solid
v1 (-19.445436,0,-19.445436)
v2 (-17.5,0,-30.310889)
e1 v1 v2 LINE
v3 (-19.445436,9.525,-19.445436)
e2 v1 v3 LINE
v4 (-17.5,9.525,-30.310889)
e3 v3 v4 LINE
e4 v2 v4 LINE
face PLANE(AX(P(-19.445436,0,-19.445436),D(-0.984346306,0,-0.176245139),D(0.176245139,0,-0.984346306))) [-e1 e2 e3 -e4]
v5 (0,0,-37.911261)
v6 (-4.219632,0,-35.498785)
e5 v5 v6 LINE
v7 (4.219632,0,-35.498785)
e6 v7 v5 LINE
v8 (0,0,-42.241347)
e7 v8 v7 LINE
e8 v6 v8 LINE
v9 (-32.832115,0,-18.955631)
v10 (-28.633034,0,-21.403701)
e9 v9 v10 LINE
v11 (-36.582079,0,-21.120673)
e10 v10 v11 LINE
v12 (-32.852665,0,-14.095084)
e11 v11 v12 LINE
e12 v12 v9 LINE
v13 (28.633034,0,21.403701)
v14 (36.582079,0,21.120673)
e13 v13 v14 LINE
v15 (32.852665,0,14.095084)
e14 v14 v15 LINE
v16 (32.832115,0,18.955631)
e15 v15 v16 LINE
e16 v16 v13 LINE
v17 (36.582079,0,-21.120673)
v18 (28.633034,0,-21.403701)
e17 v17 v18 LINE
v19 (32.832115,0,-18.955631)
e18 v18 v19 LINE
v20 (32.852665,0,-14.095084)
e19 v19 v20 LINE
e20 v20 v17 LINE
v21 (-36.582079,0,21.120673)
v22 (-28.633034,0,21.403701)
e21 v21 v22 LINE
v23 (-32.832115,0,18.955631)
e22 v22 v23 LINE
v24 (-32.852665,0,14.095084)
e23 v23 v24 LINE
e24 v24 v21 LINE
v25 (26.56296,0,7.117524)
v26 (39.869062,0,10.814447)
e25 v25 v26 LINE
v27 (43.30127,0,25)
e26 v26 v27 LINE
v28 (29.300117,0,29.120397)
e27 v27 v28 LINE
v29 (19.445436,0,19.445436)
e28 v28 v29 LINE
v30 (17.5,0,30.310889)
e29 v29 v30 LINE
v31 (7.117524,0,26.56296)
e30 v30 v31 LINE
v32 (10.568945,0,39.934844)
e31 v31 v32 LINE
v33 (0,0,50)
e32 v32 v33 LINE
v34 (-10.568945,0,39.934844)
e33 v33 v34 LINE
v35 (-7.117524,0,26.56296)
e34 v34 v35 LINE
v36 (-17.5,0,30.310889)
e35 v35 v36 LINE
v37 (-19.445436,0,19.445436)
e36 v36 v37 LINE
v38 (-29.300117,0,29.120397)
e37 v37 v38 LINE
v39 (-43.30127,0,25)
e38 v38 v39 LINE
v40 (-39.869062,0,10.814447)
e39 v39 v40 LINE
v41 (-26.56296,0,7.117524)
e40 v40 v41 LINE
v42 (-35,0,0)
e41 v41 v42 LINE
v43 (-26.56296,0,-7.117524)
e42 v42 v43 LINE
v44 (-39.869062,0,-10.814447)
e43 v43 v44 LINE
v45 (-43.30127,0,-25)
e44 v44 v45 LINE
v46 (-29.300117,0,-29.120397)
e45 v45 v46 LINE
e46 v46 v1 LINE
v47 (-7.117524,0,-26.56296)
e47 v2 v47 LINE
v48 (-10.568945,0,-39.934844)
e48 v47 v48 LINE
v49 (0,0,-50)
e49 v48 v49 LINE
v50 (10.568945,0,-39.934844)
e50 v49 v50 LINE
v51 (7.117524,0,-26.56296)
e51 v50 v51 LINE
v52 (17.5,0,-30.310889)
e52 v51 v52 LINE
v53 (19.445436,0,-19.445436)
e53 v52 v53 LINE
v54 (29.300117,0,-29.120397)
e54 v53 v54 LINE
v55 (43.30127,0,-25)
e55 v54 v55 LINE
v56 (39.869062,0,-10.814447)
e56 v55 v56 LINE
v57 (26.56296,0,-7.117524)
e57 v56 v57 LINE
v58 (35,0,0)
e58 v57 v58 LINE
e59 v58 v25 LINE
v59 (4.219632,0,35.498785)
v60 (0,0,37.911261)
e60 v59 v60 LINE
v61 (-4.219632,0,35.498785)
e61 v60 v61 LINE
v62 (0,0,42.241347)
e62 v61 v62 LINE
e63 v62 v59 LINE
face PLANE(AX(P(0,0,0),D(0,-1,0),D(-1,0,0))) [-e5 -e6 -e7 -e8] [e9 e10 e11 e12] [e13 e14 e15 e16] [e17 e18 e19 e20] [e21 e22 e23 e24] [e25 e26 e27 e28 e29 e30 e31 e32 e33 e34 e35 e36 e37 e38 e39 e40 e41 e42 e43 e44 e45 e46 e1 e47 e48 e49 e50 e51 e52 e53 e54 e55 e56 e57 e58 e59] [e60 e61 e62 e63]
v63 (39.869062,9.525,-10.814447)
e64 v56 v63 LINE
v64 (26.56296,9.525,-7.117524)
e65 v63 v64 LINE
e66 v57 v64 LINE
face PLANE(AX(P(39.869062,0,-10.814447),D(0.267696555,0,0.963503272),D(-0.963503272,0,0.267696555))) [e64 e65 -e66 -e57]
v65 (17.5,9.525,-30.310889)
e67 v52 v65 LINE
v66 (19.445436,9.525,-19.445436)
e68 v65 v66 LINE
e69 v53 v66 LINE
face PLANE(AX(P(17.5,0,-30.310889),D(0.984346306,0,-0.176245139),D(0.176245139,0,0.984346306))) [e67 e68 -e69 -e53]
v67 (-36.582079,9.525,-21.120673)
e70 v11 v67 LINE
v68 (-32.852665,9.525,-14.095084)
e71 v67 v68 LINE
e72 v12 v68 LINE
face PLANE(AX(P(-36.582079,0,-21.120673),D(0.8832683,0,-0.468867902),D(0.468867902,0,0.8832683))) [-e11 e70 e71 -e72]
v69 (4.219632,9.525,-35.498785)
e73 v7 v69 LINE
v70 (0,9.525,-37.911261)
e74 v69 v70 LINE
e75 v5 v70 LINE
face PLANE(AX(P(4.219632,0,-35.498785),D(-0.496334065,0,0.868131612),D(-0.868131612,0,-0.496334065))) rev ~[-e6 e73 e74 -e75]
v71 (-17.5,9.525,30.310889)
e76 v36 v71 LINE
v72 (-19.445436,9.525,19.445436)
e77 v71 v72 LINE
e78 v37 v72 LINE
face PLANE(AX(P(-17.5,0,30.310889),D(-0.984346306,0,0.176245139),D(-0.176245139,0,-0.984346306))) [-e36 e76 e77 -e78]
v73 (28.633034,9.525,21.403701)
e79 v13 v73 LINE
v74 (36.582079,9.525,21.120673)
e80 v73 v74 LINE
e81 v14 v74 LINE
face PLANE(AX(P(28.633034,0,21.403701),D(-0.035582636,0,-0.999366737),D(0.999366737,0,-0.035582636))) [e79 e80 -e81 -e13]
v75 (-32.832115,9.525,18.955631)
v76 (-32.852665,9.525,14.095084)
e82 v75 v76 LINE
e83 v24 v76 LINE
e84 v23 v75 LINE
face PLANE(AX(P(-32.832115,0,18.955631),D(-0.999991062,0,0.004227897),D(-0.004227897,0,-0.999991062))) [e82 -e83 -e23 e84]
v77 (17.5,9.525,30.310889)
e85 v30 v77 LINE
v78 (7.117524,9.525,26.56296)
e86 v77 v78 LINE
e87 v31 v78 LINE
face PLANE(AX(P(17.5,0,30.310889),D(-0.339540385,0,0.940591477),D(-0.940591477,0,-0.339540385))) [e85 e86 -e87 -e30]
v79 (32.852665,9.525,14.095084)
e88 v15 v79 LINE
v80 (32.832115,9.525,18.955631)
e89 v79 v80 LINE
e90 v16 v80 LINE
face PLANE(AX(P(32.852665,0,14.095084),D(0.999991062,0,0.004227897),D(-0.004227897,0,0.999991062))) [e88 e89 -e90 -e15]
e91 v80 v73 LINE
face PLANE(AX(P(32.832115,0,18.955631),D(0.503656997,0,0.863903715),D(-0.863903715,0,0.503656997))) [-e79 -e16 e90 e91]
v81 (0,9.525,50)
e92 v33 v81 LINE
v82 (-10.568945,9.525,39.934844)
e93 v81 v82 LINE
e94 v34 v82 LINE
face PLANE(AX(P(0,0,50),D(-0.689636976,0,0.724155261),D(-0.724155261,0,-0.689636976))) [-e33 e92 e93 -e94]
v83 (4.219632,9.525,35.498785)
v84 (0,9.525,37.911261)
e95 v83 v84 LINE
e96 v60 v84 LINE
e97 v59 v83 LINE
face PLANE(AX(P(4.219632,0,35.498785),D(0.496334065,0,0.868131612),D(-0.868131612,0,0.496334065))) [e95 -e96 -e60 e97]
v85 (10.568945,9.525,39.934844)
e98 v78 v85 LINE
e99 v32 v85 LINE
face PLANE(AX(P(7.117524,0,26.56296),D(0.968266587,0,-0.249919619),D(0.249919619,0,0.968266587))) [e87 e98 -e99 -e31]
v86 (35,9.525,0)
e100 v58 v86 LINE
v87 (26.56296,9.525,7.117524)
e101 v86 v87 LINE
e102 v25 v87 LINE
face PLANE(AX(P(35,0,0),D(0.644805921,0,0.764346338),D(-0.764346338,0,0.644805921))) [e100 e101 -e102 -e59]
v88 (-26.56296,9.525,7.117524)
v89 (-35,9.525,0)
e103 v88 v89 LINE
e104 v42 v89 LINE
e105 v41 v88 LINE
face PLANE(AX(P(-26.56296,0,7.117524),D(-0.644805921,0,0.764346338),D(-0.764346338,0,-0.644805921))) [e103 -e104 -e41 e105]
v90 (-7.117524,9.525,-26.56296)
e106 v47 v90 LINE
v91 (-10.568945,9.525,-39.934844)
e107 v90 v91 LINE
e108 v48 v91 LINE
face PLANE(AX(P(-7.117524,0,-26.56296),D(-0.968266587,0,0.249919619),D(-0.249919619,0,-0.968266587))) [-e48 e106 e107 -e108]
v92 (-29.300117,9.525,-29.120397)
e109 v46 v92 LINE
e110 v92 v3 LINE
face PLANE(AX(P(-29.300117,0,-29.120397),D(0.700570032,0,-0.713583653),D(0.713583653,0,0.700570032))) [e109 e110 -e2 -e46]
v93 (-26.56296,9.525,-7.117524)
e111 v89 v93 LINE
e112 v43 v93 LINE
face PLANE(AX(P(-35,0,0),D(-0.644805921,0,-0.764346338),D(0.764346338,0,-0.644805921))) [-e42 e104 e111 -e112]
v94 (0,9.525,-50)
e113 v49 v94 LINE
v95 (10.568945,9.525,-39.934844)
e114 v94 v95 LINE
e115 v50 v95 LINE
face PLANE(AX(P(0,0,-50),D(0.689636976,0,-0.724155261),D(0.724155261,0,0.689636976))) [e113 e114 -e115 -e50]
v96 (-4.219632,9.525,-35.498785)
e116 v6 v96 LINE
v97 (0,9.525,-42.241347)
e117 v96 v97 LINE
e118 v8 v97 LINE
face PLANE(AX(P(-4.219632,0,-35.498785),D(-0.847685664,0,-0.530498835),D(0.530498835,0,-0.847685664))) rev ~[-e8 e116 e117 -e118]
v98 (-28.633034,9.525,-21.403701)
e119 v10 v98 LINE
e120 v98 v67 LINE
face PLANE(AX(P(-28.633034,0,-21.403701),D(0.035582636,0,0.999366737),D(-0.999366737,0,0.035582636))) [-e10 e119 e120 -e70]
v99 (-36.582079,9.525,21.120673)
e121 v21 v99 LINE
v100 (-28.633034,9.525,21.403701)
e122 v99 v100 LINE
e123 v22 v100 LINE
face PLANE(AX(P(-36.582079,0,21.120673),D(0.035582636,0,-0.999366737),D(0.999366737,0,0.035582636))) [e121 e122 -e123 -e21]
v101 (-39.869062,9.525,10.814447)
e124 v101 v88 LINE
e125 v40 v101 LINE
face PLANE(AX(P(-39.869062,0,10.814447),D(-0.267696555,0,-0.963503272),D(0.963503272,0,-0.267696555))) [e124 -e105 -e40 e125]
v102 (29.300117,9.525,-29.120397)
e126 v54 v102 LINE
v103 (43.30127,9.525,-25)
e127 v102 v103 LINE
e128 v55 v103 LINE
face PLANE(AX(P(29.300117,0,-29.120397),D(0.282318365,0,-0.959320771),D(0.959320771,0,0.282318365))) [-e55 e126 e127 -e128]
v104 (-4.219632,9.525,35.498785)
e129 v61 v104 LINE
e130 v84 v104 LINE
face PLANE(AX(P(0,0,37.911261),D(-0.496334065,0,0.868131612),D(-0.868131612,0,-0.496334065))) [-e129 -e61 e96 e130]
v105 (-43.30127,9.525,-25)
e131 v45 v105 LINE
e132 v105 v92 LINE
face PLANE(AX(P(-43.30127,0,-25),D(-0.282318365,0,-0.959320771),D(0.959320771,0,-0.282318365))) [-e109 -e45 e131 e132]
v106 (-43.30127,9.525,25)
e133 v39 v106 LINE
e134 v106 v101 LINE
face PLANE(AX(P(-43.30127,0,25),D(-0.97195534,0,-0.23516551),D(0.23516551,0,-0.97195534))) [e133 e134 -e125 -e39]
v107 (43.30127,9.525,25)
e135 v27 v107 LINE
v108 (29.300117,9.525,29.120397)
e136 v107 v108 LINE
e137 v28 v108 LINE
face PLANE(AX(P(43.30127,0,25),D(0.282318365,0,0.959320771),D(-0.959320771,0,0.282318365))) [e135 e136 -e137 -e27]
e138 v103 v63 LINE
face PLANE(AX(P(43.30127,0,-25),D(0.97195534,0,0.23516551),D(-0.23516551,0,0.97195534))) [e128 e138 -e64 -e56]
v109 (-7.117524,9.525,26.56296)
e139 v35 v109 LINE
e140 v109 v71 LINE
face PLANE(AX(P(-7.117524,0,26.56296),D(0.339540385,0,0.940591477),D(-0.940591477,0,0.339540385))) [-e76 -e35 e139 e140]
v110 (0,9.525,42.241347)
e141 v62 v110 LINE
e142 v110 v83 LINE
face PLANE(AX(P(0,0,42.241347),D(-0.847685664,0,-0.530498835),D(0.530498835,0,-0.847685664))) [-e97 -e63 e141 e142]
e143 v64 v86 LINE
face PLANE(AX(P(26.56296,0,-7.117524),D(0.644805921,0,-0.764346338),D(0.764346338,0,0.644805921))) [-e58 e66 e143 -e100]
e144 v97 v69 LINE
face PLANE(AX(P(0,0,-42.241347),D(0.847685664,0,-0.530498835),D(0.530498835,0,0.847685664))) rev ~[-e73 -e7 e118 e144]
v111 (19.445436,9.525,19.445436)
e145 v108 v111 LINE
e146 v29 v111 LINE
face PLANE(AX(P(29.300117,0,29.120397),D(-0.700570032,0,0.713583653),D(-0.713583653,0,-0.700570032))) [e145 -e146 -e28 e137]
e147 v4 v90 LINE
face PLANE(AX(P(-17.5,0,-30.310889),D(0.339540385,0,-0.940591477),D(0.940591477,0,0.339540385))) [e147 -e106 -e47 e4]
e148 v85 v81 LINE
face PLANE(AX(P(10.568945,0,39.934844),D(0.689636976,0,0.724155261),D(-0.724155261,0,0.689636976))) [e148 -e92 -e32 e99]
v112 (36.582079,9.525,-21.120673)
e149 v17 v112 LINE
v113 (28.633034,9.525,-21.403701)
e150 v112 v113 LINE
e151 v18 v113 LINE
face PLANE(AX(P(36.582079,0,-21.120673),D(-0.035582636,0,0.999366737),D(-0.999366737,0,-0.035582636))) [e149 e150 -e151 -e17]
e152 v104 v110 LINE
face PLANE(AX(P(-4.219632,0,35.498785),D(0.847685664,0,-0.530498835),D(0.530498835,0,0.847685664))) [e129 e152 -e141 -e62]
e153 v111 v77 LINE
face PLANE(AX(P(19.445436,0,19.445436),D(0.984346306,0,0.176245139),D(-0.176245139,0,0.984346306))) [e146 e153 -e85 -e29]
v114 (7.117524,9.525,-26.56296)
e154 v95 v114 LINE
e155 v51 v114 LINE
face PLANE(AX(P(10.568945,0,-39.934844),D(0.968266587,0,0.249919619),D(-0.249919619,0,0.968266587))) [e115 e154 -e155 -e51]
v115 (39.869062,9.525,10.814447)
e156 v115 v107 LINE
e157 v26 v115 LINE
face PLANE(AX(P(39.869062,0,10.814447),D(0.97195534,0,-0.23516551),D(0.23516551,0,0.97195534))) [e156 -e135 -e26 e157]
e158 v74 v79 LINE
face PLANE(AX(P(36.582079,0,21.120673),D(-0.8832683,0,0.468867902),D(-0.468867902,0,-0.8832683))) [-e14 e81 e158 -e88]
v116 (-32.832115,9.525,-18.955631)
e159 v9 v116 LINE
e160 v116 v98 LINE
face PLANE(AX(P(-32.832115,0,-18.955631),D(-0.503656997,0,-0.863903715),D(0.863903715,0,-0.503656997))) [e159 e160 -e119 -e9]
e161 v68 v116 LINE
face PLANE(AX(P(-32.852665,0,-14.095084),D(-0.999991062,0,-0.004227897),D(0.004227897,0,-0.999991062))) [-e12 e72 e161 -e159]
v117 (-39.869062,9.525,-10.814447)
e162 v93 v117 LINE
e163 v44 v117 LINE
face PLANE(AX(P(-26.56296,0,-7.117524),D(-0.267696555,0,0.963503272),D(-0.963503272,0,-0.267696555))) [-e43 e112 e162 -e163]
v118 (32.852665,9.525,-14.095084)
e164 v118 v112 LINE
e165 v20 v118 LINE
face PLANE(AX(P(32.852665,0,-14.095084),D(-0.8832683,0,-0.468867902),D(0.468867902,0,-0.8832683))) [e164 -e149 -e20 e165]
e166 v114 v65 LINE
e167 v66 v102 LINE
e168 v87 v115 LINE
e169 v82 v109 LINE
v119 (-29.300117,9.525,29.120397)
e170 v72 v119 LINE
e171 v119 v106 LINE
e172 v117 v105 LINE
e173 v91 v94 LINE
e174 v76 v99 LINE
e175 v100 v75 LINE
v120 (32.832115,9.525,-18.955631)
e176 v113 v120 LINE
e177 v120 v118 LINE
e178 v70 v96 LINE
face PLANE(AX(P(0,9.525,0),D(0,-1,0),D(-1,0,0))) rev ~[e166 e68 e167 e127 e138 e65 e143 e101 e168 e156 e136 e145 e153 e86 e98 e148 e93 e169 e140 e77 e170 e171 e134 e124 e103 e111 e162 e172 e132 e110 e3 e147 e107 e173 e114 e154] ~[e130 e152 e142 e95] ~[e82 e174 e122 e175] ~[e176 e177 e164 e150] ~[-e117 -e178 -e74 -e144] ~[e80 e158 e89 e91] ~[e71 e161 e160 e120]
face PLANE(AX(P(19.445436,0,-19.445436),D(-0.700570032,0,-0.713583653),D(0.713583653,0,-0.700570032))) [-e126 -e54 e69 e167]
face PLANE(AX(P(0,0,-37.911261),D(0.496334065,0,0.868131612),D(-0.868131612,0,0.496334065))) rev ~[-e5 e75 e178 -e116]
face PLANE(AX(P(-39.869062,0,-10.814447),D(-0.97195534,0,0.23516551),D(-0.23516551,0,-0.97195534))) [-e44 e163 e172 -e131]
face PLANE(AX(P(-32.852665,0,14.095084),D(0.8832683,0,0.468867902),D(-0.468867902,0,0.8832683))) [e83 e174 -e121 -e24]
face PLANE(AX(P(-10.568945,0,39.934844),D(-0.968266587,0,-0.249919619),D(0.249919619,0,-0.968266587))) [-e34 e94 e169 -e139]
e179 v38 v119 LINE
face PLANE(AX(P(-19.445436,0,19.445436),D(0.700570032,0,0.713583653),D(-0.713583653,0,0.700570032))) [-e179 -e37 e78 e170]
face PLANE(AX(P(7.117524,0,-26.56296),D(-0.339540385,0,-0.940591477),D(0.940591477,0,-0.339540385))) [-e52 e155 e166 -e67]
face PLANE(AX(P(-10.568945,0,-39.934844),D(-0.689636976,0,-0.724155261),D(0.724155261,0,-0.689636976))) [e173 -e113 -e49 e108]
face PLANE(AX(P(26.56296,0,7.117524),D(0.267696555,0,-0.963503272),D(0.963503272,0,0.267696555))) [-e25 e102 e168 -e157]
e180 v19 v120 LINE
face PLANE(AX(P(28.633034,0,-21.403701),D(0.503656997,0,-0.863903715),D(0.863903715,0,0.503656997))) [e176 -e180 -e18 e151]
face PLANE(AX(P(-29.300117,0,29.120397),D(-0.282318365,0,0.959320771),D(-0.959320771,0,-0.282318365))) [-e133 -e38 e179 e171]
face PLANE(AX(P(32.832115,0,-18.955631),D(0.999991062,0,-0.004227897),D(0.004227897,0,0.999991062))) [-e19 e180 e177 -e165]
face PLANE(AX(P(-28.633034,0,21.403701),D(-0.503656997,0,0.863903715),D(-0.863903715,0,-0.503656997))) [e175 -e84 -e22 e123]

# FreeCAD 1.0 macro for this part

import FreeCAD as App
import Part
import Sketcher
from FreeCAD import Vector
Q = App.Units.Quantity


def add_polygon(sketch, points):
    """Adds a closed chain of lines whose ends are joined by coincident constraints."""
    first, n = sketch.GeometryCount, len(points)
    for a, b in zip(points, points[1:] + points[:1]):
        sketch.addGeometry(Part.LineSegment(App.Vector(*a, 0), App.Vector(*b, 0)), False)
    for i in range(n):
        sketch.addConstraint(Sketcher.Constraint("Coincident", first + i, 2, first + (i + 1) % n, 1))

doc = App.newDocument("Part")
body = doc.addObject("PartDesign::Body", "Body")

# Sketch on XZ plane
sketch1 = doc.addObject("Sketcher::SketchObject", "Sketch")
body.addObject(sketch1)
sketch1.AttachmentSupport = (doc.XZ_Plane, [""])
sketch1.MapMode = "FlatFace"
add_polygon(sketch1, [(17.5, -30.3), (7.1, -26.6), (10.6, -39.9), (0, -50), (-10.6, -39.9), (-7.1, -26.6), (-17.5, -30.3), (-19.4, -19.4), (-29.3, -29.1), (-43.3, -25), (-39.9, -10.8), (-26.6, -7.1), (-35, 0), (-26.6, 7.1), (-39.9, 10.8), (-43.3, 25), (-29.3, 29.1), (-19.4, 19.4), (-17.5, 30.3), (-7.1, 26.6), (-10.6, 39.9), (0, 50), (10.6, 39.9), (7.1, 26.6), (17.5, 30.3), (19.4, 19.4), (29.3, 29.1), (43.3, 25), (39.9, 10.8), (26.6, 7.1), (35, 0), (26.6, -7.1), (39.9, -10.8), (43.3, -25), (29.3, -29.1), (19.4, -19.4)])  # lines 0-35
add_polygon(sketch1, [(36.6, 21.1), (28.6, 21.4), (32.8, 19), (32.9, 14.1)])  # lines 36-39
add_polygon(sketch1, [(0, 42.2), (-4.2, 35.5), (0, 37.9), (4.2, 35.5)])  # lines 40-43
add_polygon(sketch1, [(-36.6, 21.1), (-32.9, 14.1), (-32.8, 19), (-28.6, 21.4)])  # lines 44-47
add_polygon(sketch1, [(28.6, -21.4), (36.6, -21.1), (32.9, -14.1), (32.8, -19)])  # lines 48-51
add_polygon(sketch1, [(-36.6, -21.1), (-28.6, -21.4), (-32.8, -19), (-32.9, -14.1)])  # lines 52-55
add_polygon(sketch1, [(0, -42.2), (4.2, -35.5), (0, -37.9), (-4.2, -35.5)])  # lines 56-59
sketch1.addConstraint([
    Sketcher.Constraint("Symmetric", 0, 2, 18, 2, -1, 1),
    Sketcher.Constraint("Symmetric", 1, 2, 19, 2, -1, 1),
    Sketcher.Constraint("Symmetric", 2, 2, 20, 2, -1, 1),
    Sketcher.Constraint("Symmetric", 3, 2, 21, 2, -1, 1),
    Sketcher.Constraint("Symmetric", 4, 2, 22, 2, -1, 1),
    Sketcher.Constraint("Symmetric", 5, 2, 23, 2, -1, 1),
    Sketcher.Constraint("Symmetric", 6, 2, 24, 2, -1, 1),
    Sketcher.Constraint("Symmetric", 7, 2, 25, 2, -1, 1),
    Sketcher.Constraint("Symmetric", 8, 2, 26, 2, -1, 1),
    Sketcher.Constraint("Symmetric", 9, 2, 27, 2, -1, 1),
    Sketcher.Constraint("Symmetric", 10, 2, 28, 2, -1, 1),
    Sketcher.Constraint("Symmetric", 11, 2, 29, 2, -1, 1),
    Sketcher.Constraint("Symmetric", 12, 2, 30, 2, -1, 1),
    Sketcher.Constraint("Symmetric", 13, 2, 31, 2, -1, 1),
    Sketcher.Constraint("Symmetric", 14, 2, 32, 2, -1, 1),
    Sketcher.Constraint("Symmetric", 15, 2, 33, 2, -1, 1),
    Sketcher.Constraint("Symmetric", 16, 2, 34, 2, -1, 1),
    Sketcher.Constraint("Symmetric", 17, 2, 35, 2, -1, 1),
    Sketcher.Constraint("Symmetric", 47, 2, 48, 2, -1, 1),
    Sketcher.Constraint("Symmetric", 44, 2, 49, 2, -1, 1),
    Sketcher.Constraint("Symmetric", 45, 2, 50, 2, -1, 1),
    Sketcher.Constraint("Symmetric", 46, 2, 51, 2, -1, 1),
    Sketcher.Constraint("Symmetric", 36, 2, 52, 2, -1, 1),
    Sketcher.Constraint("Symmetric", 37, 2, 53, 2, -1, 1),
    Sketcher.Constraint("Symmetric", 38, 2, 54, 2, -1, 1),
    Sketcher.Constraint("Symmetric", 39, 2, 55, 2, -1, 1),
    Sketcher.Constraint("Symmetric", 40, 2, 56, 2, -1, 1),
    Sketcher.Constraint("Symmetric", 41, 2, 57, 2, -1, 1),
    Sketcher.Constraint("Symmetric", 42, 2, 58, 2, -1, 1),
    Sketcher.Constraint("Symmetric", 43, 2, 59, 2, -1, 1),
    Sketcher.Constraint("Symmetric", 1, 2, 3, 2, -2),
    Sketcher.Constraint("Symmetric", 0, 2, 4, 2, -2),
    Sketcher.Constraint("Symmetric", 17, 2, 23, 2, -2),
    Sketcher.Constraint("Symmetric", 16, 2, 24, 2, -2),
    Sketcher.Constraint("Symmetric", 15, 2, 25, 2, -2),
    Sketcher.Constraint("Symmetric", 14, 2, 26, 2, -2),
    Sketcher.Constraint("Symmetric", 13, 2, 27, 2, -2),
    Sketcher.Constraint("Symmetric", 12, 2, 28, 2, -2),
    Sketcher.Constraint("Symmetric", 40, 2, 42, 2, -2),
    Sketcher.Constraint("Symmetric", 38, 2, 44, 2, -2),
    Sketcher.Constraint("Symmetric", 37, 2, 45, 2, -2),
    Sketcher.Constraint("Symmetric", 36, 2, 46, 2, -2),
    Sketcher.Constraint("Symmetric", 39, 2, 47, 2, -2),
    Sketcher.Constraint("PointOnObject", 2, 2, -2),
    Sketcher.Constraint("PointOnObject", 11, 2, -1),
    Sketcher.Constraint("PointOnObject", 41, 2, -2),
    Sketcher.Constraint("PointOnObject", 43, 2, -2),
    Sketcher.Constraint("Equal", 5, 6),
    Sketcher.Constraint("Equal", 4, 7),
    Sketcher.Constraint("Equal", 3, 8),
    Sketcher.Constraint("Equal", 8, 9),
    Sketcher.Constraint("Equal", 7, 10),
    Sketcher.Constraint("Equal", 6, 11),
    Sketcher.Constraint("Equal", 37, 38),
    Sketcher.Constraint("Equal", 36, 39),
    Sketcher.Constraint("Equal", 39, 40),
    Sketcher.Constraint("Equal", 38, 41),
    Sketcher.Constraint("DistanceY", 2, 2, -1, 1, Q("50 mm")),
    Sketcher.Constraint("DistanceX", 5, 2, -1, 1, Q("17.5 mm")),
    Sketcher.Constraint("DistanceY", 8, 2, -1, 1, Q("25 mm")),
    Sketcher.Constraint("DistanceX", 11, 2, -1, 1, Q("35 mm")),
    Sketcher.Constraint("DistanceY", -1, 1, 36, 2, Q("21.403701 mm")),
    Sketcher.Constraint("DistanceX", 25, 2, 37, 2, Q("3.531998 mm")),
    Sketcher.Constraint("DistanceY", 18, 2, 41, 2, Q("11.348301 mm")),
    Sketcher.Constraint("Distance", 0, Q("11.038242 mm")),
    Sketcher.Constraint("Distance", 2, Q("14.594861 mm")),
    Sketcher.Constraint("Distance", 37, Q("4.86059 mm")),
    Sketcher.Constraint("DistanceY", 0, 2, -1, 1, Q("26.56296 mm")),
    Sketcher.Constraint("DistanceY", 5, 2, -1, 1, Q("30.310889 mm")),
    Sketcher.Constraint("DistanceX", 8, 2, -1, 1, Q("43.30127 mm")),
    Sketcher.Constraint("DistanceX", 10, 2, -1, 1, Q("26.56296 mm")),
    Sketcher.Constraint("DistanceY", -1, 1, 37, 2, Q("18.955631 mm")),
    Sketcher.Constraint("DistanceX", -1, 1, 39, 2, Q("36.582079 mm")),
    Sketcher.Constraint("DistanceX", 40, 2, -1, 1, Q("4.219632 mm")),
    Sketcher.Constraint("DistanceX", 0, 2, 1, 2, Q("3.451422 mm")),
    Sketcher.Constraint("DistanceX", 6, 2, 3, 2, Q("8.876491 mm")),
    Sketcher.Constraint("DistanceX", 37, 2, 38, 2, Q("0.02055 mm")),
])
pad1 = doc.addObject("PartDesign::Pad", "Pad")
body.addObject(pad1)
pad1.Profile = sketch1
pad1.Length = Q("0.375 in")
pad1.Reversed = True

doc.recompute()
